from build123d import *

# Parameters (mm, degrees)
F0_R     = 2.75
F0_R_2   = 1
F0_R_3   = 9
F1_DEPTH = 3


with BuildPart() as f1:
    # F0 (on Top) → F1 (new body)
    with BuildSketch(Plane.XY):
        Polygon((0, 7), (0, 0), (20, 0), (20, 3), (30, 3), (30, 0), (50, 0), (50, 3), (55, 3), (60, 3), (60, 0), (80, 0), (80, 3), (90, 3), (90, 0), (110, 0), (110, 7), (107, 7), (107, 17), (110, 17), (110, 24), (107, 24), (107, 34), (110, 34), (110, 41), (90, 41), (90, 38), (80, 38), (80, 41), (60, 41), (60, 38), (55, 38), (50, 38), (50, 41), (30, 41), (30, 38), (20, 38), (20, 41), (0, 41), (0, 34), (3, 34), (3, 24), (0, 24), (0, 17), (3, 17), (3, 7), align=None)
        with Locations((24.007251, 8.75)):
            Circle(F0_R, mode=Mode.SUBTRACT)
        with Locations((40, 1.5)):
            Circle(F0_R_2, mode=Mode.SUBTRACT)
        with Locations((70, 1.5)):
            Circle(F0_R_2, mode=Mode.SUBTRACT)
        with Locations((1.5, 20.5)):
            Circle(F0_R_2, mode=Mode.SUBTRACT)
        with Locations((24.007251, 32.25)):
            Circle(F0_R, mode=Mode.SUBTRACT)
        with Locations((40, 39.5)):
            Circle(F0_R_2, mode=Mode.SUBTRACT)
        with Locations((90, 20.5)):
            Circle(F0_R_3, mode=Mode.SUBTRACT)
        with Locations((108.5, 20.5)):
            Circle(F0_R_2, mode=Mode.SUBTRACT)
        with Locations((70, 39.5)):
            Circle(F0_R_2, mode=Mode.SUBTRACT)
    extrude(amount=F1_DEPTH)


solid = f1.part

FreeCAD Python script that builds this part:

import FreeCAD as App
import Part
import Sketcher
Q = App.Units.Quantity


def add_polygon(sketch, points):
    """Adds a closed chain of lines whose ends are joined by coincident constraints."""
    first, n = sketch.GeometryCount, len(points)
    for a, b in zip(points, points[1:] + points[:1]):
        sketch.addGeometry(Part.LineSegment(App.Vector(*a, 0), App.Vector(*b, 0)), False)
    for i in range(n):
        sketch.addConstraint(Sketcher.Constraint("Coincident", first + i, 2, first + (i + 1) % n, 1))

doc = App.newDocument("Part")
params = doc.addObject("Spreadsheet::Sheet", "Params")
for row, (alias, value) in enumerate([
    ("sketch1_diameter", "2 mm"),
    ("sketch1_diameter2", "18 mm"),
    ("sketch1_diameter3", "5.5 mm"),
    ("sketch1_width", "20 mm"),
    ("sketch1_width2", "10 mm"),
    ("pad1_length", "3 mm"),
], start=1):
    params.set(f"A{row}", alias)
    params.set(f"B{row}", "=" + value)
    params.setAlias(f"B{row}", alias)

body = doc.addObject("PartDesign::Body", "Body")

sketch1 = body.newObject("Sketcher::SketchObject", "Sketch")
sketch1.AttachmentSupport = (doc.getObject("XY_Plane"), [""])
sketch1.MapMode = "FlatFace"
add_polygon(sketch1, [(0, 7), (0, 0), (20, 0), (20, 3), (30, 3), (30, 0), (50, 0), (50, 3), (60, 3), (60, 0), (80, 0), (80, 3), (90, 3), (90, 0), (110, 0), (110, 7), (107, 7), (107, 17), (110, 17), (110, 24), (107, 24), (107, 34), (110, 34), (110, 41), (90, 41), (90, 38), (80, 38), (80, 41), (60, 41), (60, 38), (50, 38), (50, 41), (30, 41), (30, 38), (20, 38), (20, 41), (0, 41), (0, 34), (3, 34), (3, 24), (0, 24), (0, 17), (3, 17), (3, 7)])
sketch1.addGeometry(Part.Circle(App.Vector(24.007251, 8.75, 0), App.Vector(0, 0, 1), 2.75), False)
sketch1.addGeometry(Part.Circle(App.Vector(40, 1.5, 0), App.Vector(0, 0, 1), 1), False)
sketch1.addGeometry(Part.Circle(App.Vector(70, 1.5, 0), App.Vector(0, 0, 1), 1), False)
sketch1.addGeometry(Part.Circle(App.Vector(1.5, 20.5, 0), App.Vector(0, 0, 1), 1), False)
sketch1.addGeometry(Part.Circle(App.Vector(24.007251, 32.25, 0), App.Vector(0, 0, 1), 2.75), False)
sketch1.addGeometry(Part.Circle(App.Vector(40, 39.5, 0), App.Vector(0, 0, 1), 1), False)
sketch1.addGeometry(Part.Circle(App.Vector(90, 20.5, 0), App.Vector(0, 0, 1), 9), False)
sketch1.addGeometry(Part.Circle(App.Vector(108.5, 20.5, 0), App.Vector(0, 0, 1), 1), False)
sketch1.addGeometry(Part.Circle(App.Vector(70, 39.5, 0), App.Vector(0, 0, 1), 1), False)
sketch1.addConstraint(Sketcher.Constraint("Vertical", 0))
sketch1.addConstraint(Sketcher.Constraint("Horizontal", 1))
sketch1.addConstraint(Sketcher.Constraint("Vertical", 2))
sketch1.addConstraint(Sketcher.Constraint("Horizontal", 3))
sketch1.addConstraint(Sketcher.Constraint("Vertical", 4))
sketch1.addConstraint(Sketcher.Constraint("Horizontal", 5))
sketch1.addConstraint(Sketcher.Constraint("Vertical", 6))
sketch1.addConstraint(Sketcher.Constraint("Horizontal", 7))
sketch1.addConstraint(Sketcher.Constraint("Vertical", 8))
sketch1.addConstraint(Sketcher.Constraint("Horizontal", 9))
sketch1.addConstraint(Sketcher.Constraint("Vertical", 10))
sketch1.addConstraint(Sketcher.Constraint("Horizontal", 11))
sketch1.addConstraint(Sketcher.Constraint("Vertical", 12))
sketch1.addConstraint(Sketcher.Constraint("Horizontal", 13))
sketch1.addConstraint(Sketcher.Constraint("Vertical", 14))
sketch1.addConstraint(Sketcher.Constraint("Horizontal", 15))
sketch1.addConstraint(Sketcher.Constraint("Vertical", 16))
sketch1.addConstraint(Sketcher.Constraint("Horizontal", 17))
sketch1.addConstraint(Sketcher.Constraint("Vertical", 18))
sketch1.addConstraint(Sketcher.Constraint("Horizontal", 19))
sketch1.addConstraint(Sketcher.Constraint("Vertical", 20))
sketch1.addConstraint(Sketcher.Constraint("Horizontal", 21))
sketch1.addConstraint(Sketcher.Constraint("Vertical", 22))
sketch1.addConstraint(Sketcher.Constraint("Horizontal", 23))
sketch1.addConstraint(Sketcher.Constraint("Vertical", 24))
sketch1.addConstraint(Sketcher.Constraint("Horizontal", 25))
sketch1.addConstraint(Sketcher.Constraint("Vertical", 26))
sketch1.addConstraint(Sketcher.Constraint("Horizontal", 27))
sketch1.addConstraint(Sketcher.Constraint("Vertical", 28))
sketch1.addConstraint(Sketcher.Constraint("Horizontal", 29))
sketch1.addConstraint(Sketcher.Constraint("Vertical", 30))
sketch1.addConstraint(Sketcher.Constraint("Horizontal", 31))
sketch1.addConstraint(Sketcher.Constraint("Vertical", 32))
sketch1.addConstraint(Sketcher.Constraint("Horizontal", 33))
sketch1.addConstraint(Sketcher.Constraint("Vertical", 34))
sketch1.addConstraint(Sketcher.Constraint("Horizontal", 35))
sketch1.addConstraint(Sketcher.Constraint("Vertical", 36))
sketch1.addConstraint(Sketcher.Constraint("Horizontal", 37))
sketch1.addConstraint(Sketcher.Constraint("Vertical", 38))
sketch1.addConstraint(Sketcher.Constraint("Horizontal", 39))
sketch1.addConstraint(Sketcher.Constraint("Vertical", 40))
sketch1.addConstraint(Sketcher.Constraint("Horizontal", 41))
sketch1.addConstraint(Sketcher.Constraint("Vertical", 42))
sketch1.addConstraint(Sketcher.Constraint("Horizontal", 43))
sketch1.addConstraint(Sketcher.Constraint("Coincident", 0, 2, -1, 1))
sketch1.addConstraint(Sketcher.Constraint("Equal", 45, 46))
sketch1.addConstraint(Sketcher.Constraint("Equal", 46, 47))
sketch1.addConstraint(Sketcher.Constraint("Equal", 44, 48))
sketch1.addConstraint(Sketcher.Constraint("Equal", 47, 49))
sketch1.addConstraint(Sketcher.Constraint("Equal", 49, 51))
sketch1.addConstraint(Sketcher.Constraint("Equal", 51, 52))
sketch1.addConstraint(Sketcher.Constraint("PointOnObject", 4, 2, -1))
sketch1.addConstraint(Sketcher.Constraint("PointOnObject", 8, 2, -1))
sketch1.addConstraint(Sketcher.Constraint("PointOnObject", 12, 2, -1))
sketch1.addConstraint(Sketcher.Constraint("PointOnObject", 35, 2, -2))
sketch1.addConstraint(Sketcher.Constraint("PointOnObject", 39, 2, -2))
sketch1.addConstraint(Sketcher.Constraint("Horizontal", 45, 3, 46, 3))
sketch1.addConstraint(Sketcher.Constraint("Horizontal", 47, 3, 50, 3))
sketch1.addConstraint(Sketcher.Constraint("Horizontal", 50, 3, 51, 3))
sketch1.addConstraint(Sketcher.Constraint("Horizontal", 49, 3, 52, 3))
sketch1.addConstraint(Sketcher.Constraint("Horizontal", 3, 2, 6, 2))
sketch1.addConstraint(Sketcher.Constraint("Horizontal", 7, 2, 10, 2))
sketch1.addConstraint(Sketcher.Constraint("Horizontal", 23, 2, 26, 2))
sketch1.addConstraint(Sketcher.Constraint("Horizontal", 25, 2, 28, 2))
sketch1.addConstraint(Sketcher.Constraint("Horizontal", 27, 2, 30, 2))
sketch1.addConstraint(Sketcher.Constraint("Horizontal", 29, 2, 32, 2))
sketch1.addConstraint(Sketcher.Constraint("Horizontal", 31, 2, 34, 2))
sketch1.addConstraint(Sketcher.Constraint("Horizontal", 21, 2, 36, 2))
sketch1.addConstraint(Sketcher.Constraint("Horizontal", 19, 2, 38, 2))
sketch1.addConstraint(Sketcher.Constraint("Horizontal", 17, 2, 40, 2))
sketch1.addConstraint(Sketcher.Constraint("Horizontal", 15, 2, 42, 2))
sketch1.addConstraint(Sketcher.Constraint("Vertical", 44, 3, 48, 3))
sketch1.addConstraint(Sketcher.Constraint("Vertical", 45, 3, 49, 3))
sketch1.addConstraint(Sketcher.Constraint("Vertical", 46, 3, 52, 3))
sketch1.addConstraint(Sketcher.Constraint("Vertical", 50, 3, 11, 2))
sketch1.addConstraint(Sketcher.Constraint("Vertical", 14, 2, 17, 2))
sketch1.addConstraint(Sketcher.Constraint("Vertical", 16, 2, 19, 2))
sketch1.addConstraint(Sketcher.Constraint("Vertical", 18, 2, 21, 2))
sketch1.addConstraint(Sketcher.Constraint("Vertical", 12, 2, 23, 2))
sketch1.addConstraint(Sketcher.Constraint("Vertical", 10, 2, 25, 2))
sketch1.addConstraint(Sketcher.Constraint("Vertical", 8, 2, 27, 2))
sketch1.addConstraint(Sketcher.Constraint("Vertical", 6, 2, 29, 2))
sketch1.addConstraint(Sketcher.Constraint("Vertical", 4, 2, 31, 2))
sketch1.addConstraint(Sketcher.Constraint("Vertical", 2, 2, 33, 2))
sketch1.addConstraint(Sketcher.Constraint("Vertical", 38, 2, 41, 2))
sketch1.addConstraint(Sketcher.Constraint("Equal", 1, 5))
sketch1.addConstraint(Sketcher.Constraint("Equal", 3, 7))
sketch1.addConstraint(Sketcher.Constraint("Equal", 5, 9))
sketch1.addConstraint(Sketcher.Constraint("Equal", 7, 11))
sketch1.addConstraint(Sketcher.Constraint("Equal", 9, 13))
sketch1.addConstraint(Sketcher.Constraint("Equal", 21, 37))
sketch1.addConstraint(Sketcher.Constraint("Equal", 43, 2))
sketch1.addConstraint(Sketcher.Constraint("Equal", 33, 16))
sketch1.addConstraint(Sketcher.Constraint("Equal", 14, 18))
sketch1.addConstraint(Sketcher.Constraint("Equal", 16, 20))
sketch1.addConstraint(Sketcher.Constraint("Equal", 18, 22))
sketch1.addConstraint(Sketcher.Constraint("Equal", 12, 24))
sketch1.addConstraint(Sketcher.Constraint("Diameter", 45, Q("2 mm")))
sketch1.addConstraint(Sketcher.Constraint("Diameter", 50, Q("18 mm")))
sketch1.addConstraint(Sketcher.Constraint("Diameter", 44, Q("5.5 mm")))
sketch1.addConstraint(Sketcher.Constraint("DistanceX", 1, 1, 1, 2, Q("20 mm")))
sketch1.addConstraint(Sketcher.Constraint("DistanceX", 3, 1, 3, 2, Q("10 mm")))
sketch1.addConstraint(Sketcher.Constraint("DistanceX", 15, 2, 15, 1, Q("3 mm")))
sketch1.addConstraint(Sketcher.Constraint("DistanceY", 0, 2, 0, 1, Q("7 mm")))
sketch1.addConstraint(Sketcher.Constraint("DistanceX", -1, 1, 45, 3, Q("40 mm")))
sketch1.addConstraint(Sketcher.Constraint("DistanceX", -1, 1, 46, 3, Q("70 mm")))
sketch1.addConstraint(Sketcher.Constraint("DistanceY", 45, 3, 47, 3, Q("19 mm")))
sketch1.addConstraint(Sketcher.Constraint("DistanceY", 45, 3, 49, 3, Q("38 mm")))
sketch1.addConstraint(Sketcher.Constraint("DistanceY", -1, 1, 45, 3, Q("1.5 mm")))
sketch1.addConstraint(Sketcher.Constraint("DistanceX", -1, 1, 47, 3, Q("1.5 mm")))
sketch1.addConstraint(Sketcher.Constraint("DistanceX", -1, 1, 51, 3, Q("108.5 mm")))
sketch1.addConstraint(Sketcher.Constraint("DistanceY", 44, 3, 48, 3, Q("23.5 mm")))
sketch1.addConstraint(Sketcher.Constraint("DistanceY", -1, 1, 44, 3, Q("8.75 mm")))
sketch1.addConstraint(Sketcher.Constraint("DistanceX", -1, 1, 44, 3, Q("24.007251 mm")))
sketch1.setExpression("Constraints[141]", "Params.sketch1_diameter")
sketch1.setExpression("Constraints[142]", "Params.sketch1_diameter2")
sketch1.setExpression("Constraints[143]", "Params.sketch1_diameter3")
sketch1.setExpression("Constraints[144]", "Params.sketch1_width")
sketch1.setExpression("Constraints[145]", "Params.sketch1_width2")
pad1 = body.newObject("PartDesign::Pad", "Pad")
pad1.Profile = sketch1
pad1.setExpression("Length", "Params.pad1_length")

doc.recompute()
